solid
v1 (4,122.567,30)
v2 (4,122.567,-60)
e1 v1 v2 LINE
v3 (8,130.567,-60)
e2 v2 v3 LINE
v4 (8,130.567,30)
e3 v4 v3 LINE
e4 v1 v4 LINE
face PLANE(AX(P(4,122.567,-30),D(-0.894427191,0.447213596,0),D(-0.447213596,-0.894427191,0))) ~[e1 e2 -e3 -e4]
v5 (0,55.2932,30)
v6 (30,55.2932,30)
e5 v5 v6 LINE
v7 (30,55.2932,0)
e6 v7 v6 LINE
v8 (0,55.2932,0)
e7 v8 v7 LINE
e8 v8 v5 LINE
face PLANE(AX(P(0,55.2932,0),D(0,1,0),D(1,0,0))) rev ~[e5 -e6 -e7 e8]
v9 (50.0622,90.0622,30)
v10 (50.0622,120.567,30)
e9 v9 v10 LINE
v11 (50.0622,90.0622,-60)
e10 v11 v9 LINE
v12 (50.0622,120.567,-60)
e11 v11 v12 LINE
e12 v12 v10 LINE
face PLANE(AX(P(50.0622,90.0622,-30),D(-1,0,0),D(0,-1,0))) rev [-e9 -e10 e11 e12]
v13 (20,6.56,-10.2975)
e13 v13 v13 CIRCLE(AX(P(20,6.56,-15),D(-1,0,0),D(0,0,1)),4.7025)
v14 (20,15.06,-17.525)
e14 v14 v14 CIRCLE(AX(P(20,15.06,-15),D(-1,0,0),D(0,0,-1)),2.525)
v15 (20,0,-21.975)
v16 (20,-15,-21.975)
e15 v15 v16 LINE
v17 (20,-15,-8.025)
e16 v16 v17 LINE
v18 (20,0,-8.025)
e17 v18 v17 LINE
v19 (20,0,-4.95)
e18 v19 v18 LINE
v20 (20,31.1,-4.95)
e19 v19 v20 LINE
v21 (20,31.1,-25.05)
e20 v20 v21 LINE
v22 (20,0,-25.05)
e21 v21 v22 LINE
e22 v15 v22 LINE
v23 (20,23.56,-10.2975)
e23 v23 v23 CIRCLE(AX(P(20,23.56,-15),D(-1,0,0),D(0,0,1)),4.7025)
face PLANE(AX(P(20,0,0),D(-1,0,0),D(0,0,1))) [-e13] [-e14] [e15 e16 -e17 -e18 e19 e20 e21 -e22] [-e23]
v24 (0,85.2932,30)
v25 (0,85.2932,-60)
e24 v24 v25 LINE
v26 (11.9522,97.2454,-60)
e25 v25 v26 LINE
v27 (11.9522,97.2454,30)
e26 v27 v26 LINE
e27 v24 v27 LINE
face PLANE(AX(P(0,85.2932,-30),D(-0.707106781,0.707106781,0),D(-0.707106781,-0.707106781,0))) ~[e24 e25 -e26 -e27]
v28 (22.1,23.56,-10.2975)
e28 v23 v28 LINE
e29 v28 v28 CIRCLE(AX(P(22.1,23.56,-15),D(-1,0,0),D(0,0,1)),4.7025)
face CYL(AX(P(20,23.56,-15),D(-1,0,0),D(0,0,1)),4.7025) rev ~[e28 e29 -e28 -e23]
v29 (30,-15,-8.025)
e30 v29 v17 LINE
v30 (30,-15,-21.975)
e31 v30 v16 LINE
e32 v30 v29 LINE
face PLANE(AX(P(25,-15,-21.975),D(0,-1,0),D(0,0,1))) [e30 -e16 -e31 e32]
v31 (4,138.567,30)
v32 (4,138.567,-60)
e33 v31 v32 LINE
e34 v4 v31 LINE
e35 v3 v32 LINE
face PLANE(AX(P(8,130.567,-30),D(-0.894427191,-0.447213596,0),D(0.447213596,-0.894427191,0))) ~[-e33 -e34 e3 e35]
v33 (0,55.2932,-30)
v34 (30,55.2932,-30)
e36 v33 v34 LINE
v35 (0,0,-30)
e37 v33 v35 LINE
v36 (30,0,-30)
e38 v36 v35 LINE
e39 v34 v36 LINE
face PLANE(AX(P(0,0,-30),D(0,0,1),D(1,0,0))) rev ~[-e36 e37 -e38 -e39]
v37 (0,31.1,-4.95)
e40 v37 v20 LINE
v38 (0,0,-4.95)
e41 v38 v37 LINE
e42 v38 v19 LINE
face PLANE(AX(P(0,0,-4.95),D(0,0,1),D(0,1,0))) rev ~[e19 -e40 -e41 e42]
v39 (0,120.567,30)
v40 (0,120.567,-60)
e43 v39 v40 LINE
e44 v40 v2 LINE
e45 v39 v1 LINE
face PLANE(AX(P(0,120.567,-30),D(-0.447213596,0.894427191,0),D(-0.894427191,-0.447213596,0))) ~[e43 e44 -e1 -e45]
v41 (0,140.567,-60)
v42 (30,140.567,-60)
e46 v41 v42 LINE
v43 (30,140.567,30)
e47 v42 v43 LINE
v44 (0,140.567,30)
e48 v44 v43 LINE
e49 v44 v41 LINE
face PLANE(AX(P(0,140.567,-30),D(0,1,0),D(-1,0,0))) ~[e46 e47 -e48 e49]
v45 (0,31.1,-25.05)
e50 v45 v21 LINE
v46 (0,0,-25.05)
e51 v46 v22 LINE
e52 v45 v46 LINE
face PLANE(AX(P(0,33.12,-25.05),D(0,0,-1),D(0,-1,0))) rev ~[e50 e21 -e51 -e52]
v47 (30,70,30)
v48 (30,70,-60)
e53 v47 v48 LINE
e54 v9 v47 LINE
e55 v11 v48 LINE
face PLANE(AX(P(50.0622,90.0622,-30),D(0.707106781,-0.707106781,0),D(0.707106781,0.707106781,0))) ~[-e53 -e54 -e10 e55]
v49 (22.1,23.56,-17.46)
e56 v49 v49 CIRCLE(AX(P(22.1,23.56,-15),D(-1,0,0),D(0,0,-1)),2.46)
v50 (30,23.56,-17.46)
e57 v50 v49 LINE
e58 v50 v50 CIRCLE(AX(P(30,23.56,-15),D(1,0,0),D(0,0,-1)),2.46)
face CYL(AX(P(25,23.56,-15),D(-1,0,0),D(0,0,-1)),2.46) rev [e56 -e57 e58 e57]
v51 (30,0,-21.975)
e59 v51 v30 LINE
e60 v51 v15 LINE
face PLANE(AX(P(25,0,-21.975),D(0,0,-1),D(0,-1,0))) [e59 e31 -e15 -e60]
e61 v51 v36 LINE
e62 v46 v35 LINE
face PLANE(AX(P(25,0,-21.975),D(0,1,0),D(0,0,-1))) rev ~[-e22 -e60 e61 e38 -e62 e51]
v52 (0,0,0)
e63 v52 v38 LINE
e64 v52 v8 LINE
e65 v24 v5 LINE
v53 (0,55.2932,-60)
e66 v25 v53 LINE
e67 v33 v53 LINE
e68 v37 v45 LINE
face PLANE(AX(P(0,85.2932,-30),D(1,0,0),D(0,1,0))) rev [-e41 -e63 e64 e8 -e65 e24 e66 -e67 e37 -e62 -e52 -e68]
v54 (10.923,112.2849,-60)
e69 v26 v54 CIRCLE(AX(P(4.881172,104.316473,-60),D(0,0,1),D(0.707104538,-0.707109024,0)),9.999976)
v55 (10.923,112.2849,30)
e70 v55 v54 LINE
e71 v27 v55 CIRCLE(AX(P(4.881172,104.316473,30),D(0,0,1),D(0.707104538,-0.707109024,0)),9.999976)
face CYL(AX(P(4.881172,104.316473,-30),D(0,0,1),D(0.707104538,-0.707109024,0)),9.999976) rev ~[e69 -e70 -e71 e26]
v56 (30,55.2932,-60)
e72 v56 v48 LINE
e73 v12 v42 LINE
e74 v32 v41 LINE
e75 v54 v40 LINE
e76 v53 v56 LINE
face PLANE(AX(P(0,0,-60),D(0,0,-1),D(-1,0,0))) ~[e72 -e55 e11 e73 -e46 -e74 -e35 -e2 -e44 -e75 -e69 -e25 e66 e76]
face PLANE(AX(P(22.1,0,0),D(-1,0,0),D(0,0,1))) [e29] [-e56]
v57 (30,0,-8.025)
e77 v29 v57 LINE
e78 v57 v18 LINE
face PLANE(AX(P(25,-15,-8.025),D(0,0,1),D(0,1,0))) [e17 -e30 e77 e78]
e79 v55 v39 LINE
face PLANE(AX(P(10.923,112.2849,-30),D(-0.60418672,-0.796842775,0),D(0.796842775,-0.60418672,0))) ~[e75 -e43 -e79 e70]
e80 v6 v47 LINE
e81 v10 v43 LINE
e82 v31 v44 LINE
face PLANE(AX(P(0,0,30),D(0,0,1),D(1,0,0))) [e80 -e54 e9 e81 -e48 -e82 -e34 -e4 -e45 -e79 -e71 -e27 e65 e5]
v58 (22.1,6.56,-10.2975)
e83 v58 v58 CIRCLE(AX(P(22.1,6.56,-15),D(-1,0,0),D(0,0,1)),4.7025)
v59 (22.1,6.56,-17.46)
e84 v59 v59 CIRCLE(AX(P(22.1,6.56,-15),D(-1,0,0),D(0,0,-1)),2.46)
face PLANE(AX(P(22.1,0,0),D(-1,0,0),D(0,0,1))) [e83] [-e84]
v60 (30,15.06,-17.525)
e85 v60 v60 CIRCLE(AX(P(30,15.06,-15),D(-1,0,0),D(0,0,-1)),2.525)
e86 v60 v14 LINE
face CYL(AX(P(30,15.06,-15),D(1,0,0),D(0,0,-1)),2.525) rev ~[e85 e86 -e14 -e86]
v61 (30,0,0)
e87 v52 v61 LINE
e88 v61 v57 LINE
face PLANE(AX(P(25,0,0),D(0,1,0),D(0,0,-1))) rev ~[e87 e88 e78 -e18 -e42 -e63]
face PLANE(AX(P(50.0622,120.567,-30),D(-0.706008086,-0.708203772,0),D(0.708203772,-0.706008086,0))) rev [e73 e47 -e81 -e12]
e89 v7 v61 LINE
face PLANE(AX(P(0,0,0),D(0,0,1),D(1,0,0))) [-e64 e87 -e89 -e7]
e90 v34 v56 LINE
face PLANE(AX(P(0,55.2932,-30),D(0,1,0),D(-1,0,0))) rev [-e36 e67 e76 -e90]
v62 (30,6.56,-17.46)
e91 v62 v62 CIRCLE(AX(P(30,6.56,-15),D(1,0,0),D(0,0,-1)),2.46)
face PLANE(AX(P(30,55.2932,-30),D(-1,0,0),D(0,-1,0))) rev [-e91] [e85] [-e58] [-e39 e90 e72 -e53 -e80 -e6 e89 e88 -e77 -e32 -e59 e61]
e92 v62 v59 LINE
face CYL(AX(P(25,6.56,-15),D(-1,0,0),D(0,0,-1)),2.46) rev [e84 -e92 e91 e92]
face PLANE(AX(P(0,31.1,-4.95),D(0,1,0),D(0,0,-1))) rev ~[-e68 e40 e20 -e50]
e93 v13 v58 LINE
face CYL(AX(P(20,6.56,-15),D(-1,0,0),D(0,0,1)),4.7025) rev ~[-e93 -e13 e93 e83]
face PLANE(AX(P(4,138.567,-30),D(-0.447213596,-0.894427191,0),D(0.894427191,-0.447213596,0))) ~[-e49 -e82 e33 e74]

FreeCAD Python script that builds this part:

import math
import FreeCAD as App
import Part
import Sketcher

V = App.Vector
Q = App.Units.Quantity

doc = App.newDocument("Part")
body = doc.addObject("PartDesign::Body", "Body")

# Sketch on XY plane
sketch1 = body.newObject("Sketcher::SketchObject", "Sketch")
sketch1.AttachmentSupport = (doc.getObject("XY_Plane"), [""])
sketch1.MapMode = "FlatFace"
sketch1.addGeometry(Part.LineSegment(V(0, 40, 0), V(0, 0, 0)), False)
sketch1.addGeometry(Part.LineSegment(V(0, 0, 0), V(25, 0, 0)), False)
sketch1.addGeometry(Part.LineSegment(V(25, 0, 0), V(25, 40, 0)), False)
sketch1.addGeometry(Part.LineSegment(V(25, 40, 0), V(0, 40, 0)), False)
sketch1.addConstraint(Sketcher.Constraint("Coincident", 0, 2, 1, 1))
sketch1.addConstraint(Sketcher.Constraint("Coincident", 1, 2, 2, 1))
sketch1.addConstraint(Sketcher.Constraint("Coincident", 2, 2, 3, 1))
sketch1.addConstraint(Sketcher.Constraint("Coincident", 3, 2, 0, 1))
sketch1.addConstraint(Sketcher.Constraint("Vertical", 0))
sketch1.addConstraint(Sketcher.Constraint("Horizontal", 1))
sketch1.addConstraint(Sketcher.Constraint("Vertical", 2))
sketch1.addConstraint(Sketcher.Constraint("Horizontal", 3))
sketch1.addConstraint(Sketcher.Constraint("Coincident", 0, 2, -1, 1))
sketch1.addConstraint(Sketcher.Constraint("DistanceX", 1, 1, 1, 2, 25.0))
sketch1.addConstraint(Sketcher.Constraint("DistanceY", 0, 2, 0, 1, 40.0))
pad1 = body.newObject("PartDesign::Pad", "Pad")
pad1.Profile = sketch1
pad1.Length = 30
pad1.Reversed = True

# Sketch on YZ plane
sketch2 = body.newObject("Sketcher::SketchObject", "Sketch001")
sketch2.AttachmentSupport = (doc.getObject("YZ_Plane"), [""])
sketch2.MapMode = "FlatFace"
sketch2.AttachmentOffset = App.Placement(V(0, 0, 25), App.Rotation())
sketch2.addGeometry(Part.Circle(V(6.56, -15, 0), V(0, 0, 1), 2.46), False)
sketch2.addConstraint(Sketcher.Constraint("Diameter", 0, 4.92))
sketch2.addConstraint(Sketcher.Constraint("DistanceY", 0, 3, -1, 1, 15.0))
sketch2.addConstraint(Sketcher.Constraint("DistanceX", -1, 1, 0, 3, 6.56))
pocket1 = body.newObject("PartDesign::Pocket", "Pocket")
pocket1.Profile = sketch2
pocket1.Length = 30

# Sketch on YZ plane
sketch3 = body.newObject("Sketcher::SketchObject", "Sketch002")
sketch3.AttachmentSupport = (doc.getObject("YZ_Plane"), [""])
sketch3.MapMode = "FlatFace"
sketch3.addGeometry(Part.LineSegment(V(0, -25.05, 0), V(0, -4.95, 0)), False)
sketch3.addGeometry(Part.LineSegment(V(0, -4.95, 0), V(33.12, -4.95, 0)), False)
sketch3.addGeometry(Part.LineSegment(V(33.12, -4.95, 0), V(33.12, -25.05, 0)), False)
sketch3.addGeometry(Part.LineSegment(V(33.12, -25.05, 0), V(0, -25.05, 0)), False)
sketch3.addConstraint(Sketcher.Constraint("Coincident", 0, 2, 1, 1))
sketch3.addConstraint(Sketcher.Constraint("Coincident", 1, 2, 2, 1))
sketch3.addConstraint(Sketcher.Constraint("Coincident", 2, 2, 3, 1))
sketch3.addConstraint(Sketcher.Constraint("Coincident", 3, 2, 0, 1))
sketch3.addConstraint(Sketcher.Constraint("Vertical", 0))
sketch3.addConstraint(Sketcher.Constraint("Horizontal", 1))
sketch3.addConstraint(Sketcher.Constraint("Vertical", 2))
sketch3.addConstraint(Sketcher.Constraint("Horizontal", 3))
sketch3.addConstraint(Sketcher.Constraint("PointOnObject", 0, 2, -2))
sketch3.addConstraint(Sketcher.Constraint("DistanceY", 0, 1, 0, 2, 20.1))
sketch3.addConstraint(Sketcher.Constraint("DistanceX", 1, 1, 1, 2, 33.12))
sketch3.addConstraint(Sketcher.Constraint("DistanceY", 0, 2, -1, 1, 4.95))
pocket2 = body.newObject("PartDesign::Pocket", "Pocket001")
pocket2.Profile = sketch3
pocket2.Length = 20
pocket2.Reversed = True

# Sketch on XZ plane
sketch4 = body.newObject("Sketcher::SketchObject", "Sketch003")
sketch4.AttachmentSupport = (doc.getObject("XZ_Plane"), [""])
sketch4.MapMode = "FlatFace"
sketch4.addGeometry(Part.LineSegment(V(25, -8.025, 0), V(20, -8.025, 0)), False)
sketch4.addGeometry(Part.LineSegment(V(20, -8.025, 0), V(20, -21.975, 0)), False)
sketch4.addGeometry(Part.LineSegment(V(20, -21.975, 0), V(25, -21.975, 0)), False)
sketch4.addGeometry(Part.LineSegment(V(25, -21.975, 0), V(25, -8.025, 0)), False)
sketch4.addConstraint(Sketcher.Constraint("Coincident", 0, 2, 1, 1))
sketch4.addConstraint(Sketcher.Constraint("Coincident", 1, 2, 2, 1))
sketch4.addConstraint(Sketcher.Constraint("Coincident", 2, 2, 3, 1))
sketch4.addConstraint(Sketcher.Constraint("Coincident", 3, 2, 0, 1))
sketch4.addConstraint(Sketcher.Constraint("Horizontal", 0))
sketch4.addConstraint(Sketcher.Constraint("Vertical", 1))
sketch4.addConstraint(Sketcher.Constraint("Horizontal", 2))
sketch4.addConstraint(Sketcher.Constraint("Vertical", 3))
sketch4.addConstraint(Sketcher.Constraint("DistanceY", 1, 2, 1, 1, 13.95))
sketch4.addConstraint(Sketcher.Constraint("DistanceX", 0, 2, 0, 1, 5.0))
sketch4.addConstraint(Sketcher.Constraint("DistanceX", -1, 1, 0, 2, 20.0))
sketch4.addConstraint(Sketcher.Constraint("DistanceY", 0, 2, -1, 1, 8.025))
pad2 = body.newObject("PartDesign::Pad", "Pad001")
pad2.Profile = sketch4
pad2.Length = 15

# Sketch on YZ plane
sketch5 = body.newObject("Sketcher::SketchObject", "Sketch004")
sketch5.AttachmentSupport = (doc.getObject("YZ_Plane"), [""])
sketch5.MapMode = "FlatFace"
sketch5.AttachmentOffset = App.Placement(V(0, 0, 20), App.Rotation())
sketch5.addGeometry(Part.Circle(V(6.56, -15, 0), V(0, 0, 1), 4.7025), False)
sketch5.addGeometry(Part.Circle(V(6.56, -15, 0), V(0, 0, 1), 2.46), False)
sketch5.addConstraint(Sketcher.Constraint("Coincident", 1, 3, 0, 3))
sketch5.addConstraint(Sketcher.Constraint("Diameter", 0, 9.405))
sketch5.addConstraint(Sketcher.Constraint("Diameter", 1, 4.92))
sketch5.addConstraint(Sketcher.Constraint("DistanceY", 0, 3, -1, 1, 15.0))
sketch5.addConstraint(Sketcher.Constraint("DistanceX", -1, 1, 0, 3, 6.56))
pocket3 = body.newObject("PartDesign::Pocket", "Pocket002")
pocket3.Profile = sketch5
pocket3.Length = 2.1
pocket3.Reversed = True

# Sketch on YZ plane
sketch6 = body.newObject("Sketcher::SketchObject", "Sketch005")
sketch6.AttachmentSupport = (doc.getObject("YZ_Plane"), [""])
sketch6.MapMode = "FlatFace"
sketch6.AttachmentOffset = App.Placement(V(0, 0, 25), App.Rotation())
sketch6.addGeometry(Part.Circle(V(23.56, -15, 0), V(0, 0, 1), 2.46), False)
sketch6.addConstraint(Sketcher.Constraint("Diameter", 0, 4.92))
sketch6.addConstraint(Sketcher.Constraint("DistanceY", 0, 3, -1, 1, 15.0))
sketch6.addConstraint(Sketcher.Constraint("DistanceX", -1, 1, 0, 3, 23.56))
pocket4 = body.newObject("PartDesign::Pocket", "Pocket003")
pocket4.Profile = sketch6
pocket4.Length = 10

# Sketch on YZ plane
sketch7 = body.newObject("Sketcher::SketchObject", "Sketch006")
sketch7.AttachmentSupport = (doc.getObject("YZ_Plane"), [""])
sketch7.MapMode = "FlatFace"
sketch7.AttachmentOffset = App.Placement(V(0, 0, 20), App.Rotation())
sketch7.addGeometry(Part.Circle(V(23.56, -15, 0), V(0, 0, 1), 4.7025), False)
sketch7.addGeometry(Part.Circle(V(23.56, -15, 0), V(0, 0, 1), 2.46), False)
sketch7.addConstraint(Sketcher.Constraint("Coincident", 1, 3, 0, 3))
sketch7.addConstraint(Sketcher.Constraint("Diameter", 0, 9.405))
sketch7.addConstraint(Sketcher.Constraint("Diameter", 1, 4.92))
sketch7.addConstraint(Sketcher.Constraint("DistanceY", 0, 3, -1, 1, 15.0))
sketch7.addConstraint(Sketcher.Constraint("DistanceX", -1, 1, 0, 3, 23.56))
pocket5 = body.newObject("PartDesign::Pocket", "Pocket004")
pocket5.Profile = sketch7
pocket5.Length = 2.1
pocket5.Reversed = True

# Sketch on YZ plane
sketch8 = body.newObject("Sketcher::SketchObject", "Sketch007")
sketch8.AttachmentSupport = (doc.getObject("YZ_Plane"), [""])
sketch8.MapMode = "FlatFace"
sketch8.AttachmentOffset = App.Placement(V(0, 0, 25), App.Rotation())
sketch8.addGeometry(Part.LineSegment(V(0, -30, 0), V(40, -30, 0)), False)
sketch8.addGeometry(Part.LineSegment(V(40, -30, 0), V(40, 0, 0)), False)
sketch8.addGeometry(Part.LineSegment(V(40, 0, 0), V(0, 0, 0)), False)
sketch8.addGeometry(Part.LineSegment(V(0, 0, 0), V(0, -8.025, 0)), False)
sketch8.addGeometry(Part.LineSegment(V(0, -8.025, 0), V(-15, -8.025, 0)), False)
sketch8.addGeometry(Part.LineSegment(V(-15, -8.025, 0), V(-15, -21.975, 0)), False)
sketch8.addGeometry(Part.LineSegment(V(-15, -21.975, 0), V(0, -21.975, 0)), False)
sketch8.addGeometry(Part.LineSegment(V(0, -21.975, 0), V(0, -30, 0)), False)
sketch8.addGeometry(Part.Circle(V(6.56, -15, 0), V(0, 0, 1), 2.46), False)
sketch8.addGeometry(Part.Circle(V(23.56, -15, 0), V(0, 0, 1), 2.46), False)
sketch8.addConstraint(Sketcher.Constraint("Coincident", 0, 2, 1, 1))
sketch8.addConstraint(Sketcher.Constraint("Coincident", 1, 2, 2, 1))
sketch8.addConstraint(Sketcher.Constraint("Coincident", 2, 2, 3, 1))
sketch8.addConstraint(Sketcher.Constraint("Coincident", 3, 2, 4, 1))
sketch8.addConstraint(Sketcher.Constraint("Coincident", 4, 2, 5, 1))
sketch8.addConstraint(Sketcher.Constraint("Coincident", 5, 2, 6, 1))
sketch8.addConstraint(Sketcher.Constraint("Coincident", 6, 2, 7, 1))
sketch8.addConstraint(Sketcher.Constraint("Coincident", 7, 2, 0, 1))
sketch8.addConstraint(Sketcher.Constraint("Horizontal", 0))
sketch8.addConstraint(Sketcher.Constraint("Vertical", 1))
sketch8.addConstraint(Sketcher.Constraint("Horizontal", 2))
sketch8.addConstraint(Sketcher.Constraint("Vertical", 3))
sketch8.addConstraint(Sketcher.Constraint("Horizontal", 4))
sketch8.addConstraint(Sketcher.Constraint("Vertical", 5))
sketch8.addConstraint(Sketcher.Constraint("Horizontal", 6))
sketch8.addConstraint(Sketcher.Constraint("Vertical", 7))
sketch8.addConstraint(Sketcher.Constraint("Coincident", 2, 2, -1, 1))
sketch8.addConstraint(Sketcher.Constraint("Equal", 8, 9))
sketch8.addConstraint(Sketcher.Constraint("PointOnObject", 6, 2, -2))
sketch8.addConstraint(Sketcher.Constraint("Horizontal", 8, 3, 9, 3))
sketch8.addConstraint(Sketcher.Constraint("Equal", 3, 7))
sketch8.addConstraint(Sketcher.Constraint("Diameter", 8, 4.92))
sketch8.addConstraint(Sketcher.Constraint("DistanceX", 0, 1, 0, 2, 40.0))
sketch8.addConstraint(Sketcher.Constraint("DistanceX", 4, 2, 4, 1, 15.0))
sketch8.addConstraint(Sketcher.Constraint("DistanceY", 1, 1, 1, 2, 30.0))
sketch8.addConstraint(Sketcher.Constraint("DistanceY", 8, 3, -1, 1, 15.0))
sketch8.addConstraint(Sketcher.Constraint("DistanceX", 8, 3, 9, 3, 17.0))
sketch8.addConstraint(Sketcher.Constraint("DistanceY", 5, 2, 5, 1, 13.95))
sketch8.addConstraint(Sketcher.Constraint("DistanceX", -1, 1, 8, 3, 6.56))
pad3 = body.newObject("PartDesign::Pad", "Pad002")
pad3.Profile = sketch8
pad3.Length = 5

# Sketch on XZ plane
sketch9 = body.newObject("Sketcher::SketchObject", "Sketch008")
sketch9.AttachmentSupport = (doc.getObject("XZ_Plane"), [""])
sketch9.MapMode = "FlatFace"
sketch9.AttachmentOffset = App.Placement(V(0, 0, -40), App.Rotation())
sketch9.addGeometry(Part.LineSegment(V(30, -30, 0), V(0, -30, 0)), False)
sketch9.addGeometry(Part.LineSegment(V(0, -30, 0), V(0, 0, 0)), False)
sketch9.addGeometry(Part.LineSegment(V(0, 0, 0), V(30, 0, 0)), False)
sketch9.addGeometry(Part.LineSegment(V(30, 0, 0), V(30, -30, 0)), False)
sketch9.addConstraint(Sketcher.Constraint("Coincident", 0, 2, 1, 1))
sketch9.addConstraint(Sketcher.Constraint("Coincident", 1, 2, 2, 1))
sketch9.addConstraint(Sketcher.Constraint("Coincident", 2, 2, 3, 1))
sketch9.addConstraint(Sketcher.Constraint("Coincident", 3, 2, 0, 1))
sketch9.addConstraint(Sketcher.Constraint("Horizontal", 0))
sketch9.addConstraint(Sketcher.Constraint("Vertical", 1))
sketch9.addConstraint(Sketcher.Constraint("Horizontal", 2))
sketch9.addConstraint(Sketcher.Constraint("Vertical", 3))
sketch9.addConstraint(Sketcher.Constraint("Coincident", 1, 2, -1, 1))
sketch9.addConstraint(Sketcher.Constraint("Equal", 2, 1))
sketch9.addConstraint(Sketcher.Constraint("DistanceX", 0, 2, 0, 1, 30.0))
pad4 = body.newObject("PartDesign::Pad", "Pad003")
pad4.Profile = sketch9
pad4.Length = 30
pad4.Reversed = True

# Sketch on YZ plane
sketch10 = body.newObject("Sketcher::SketchObject", "Sketch009")
sketch10.AttachmentSupport = (doc.getObject("YZ_Plane"), [""])
sketch10.MapMode = "FlatFace"
sketch10.AttachmentOffset = App.Placement(V(0, 0, 30), App.Rotation())
sketch10.addGeometry(Part.Circle(V(15.06, -15, 0), V(0, 0, 1), 2.525), False)
sketch10.addConstraint(Sketcher.Constraint("Diameter", 0, 5.05))
sketch10.addConstraint(Sketcher.Constraint("DistanceY", 0, 3, -1, 1, 15.0))
sketch10.addConstraint(Sketcher.Constraint("DistanceX", -1, 1, 0, 3, 15.06))
pocket6 = body.newObject("PartDesign::Pocket", "Pocket005")
pocket6.Profile = sketch10
pocket6.Length = 30

# Sketch on YZ plane
sketch11 = body.newObject("Sketcher::SketchObject", "Sketch010")
sketch11.AttachmentSupport = (doc.getObject("YZ_Plane"), [""])
sketch11.MapMode = "FlatFace"
sketch11.addGeometry(Part.LineSegment(V(33.12, -4.95, 0), V(33.12, -25.05, 0)), False)
sketch11.addGeometry(Part.LineSegment(V(33.12, -25.05, 0), V(31.1, -25.05, 0)), False)
sketch11.addGeometry(Part.LineSegment(V(31.1, -25.05, 0), V(31.1, -4.95, 0)), False)
sketch11.addGeometry(Part.LineSegment(V(31.1, -4.95, 0), V(33.12, -4.95, 0)), False)
sketch11.addConstraint(Sketcher.Constraint("Coincident", 0, 2, 1, 1))
sketch11.addConstraint(Sketcher.Constraint("Coincident", 1, 2, 2, 1))
sketch11.addConstraint(Sketcher.Constraint("Coincident", 2, 2, 3, 1))
sketch11.addConstraint(Sketcher.Constraint("Coincident", 3, 2, 0, 1))
sketch11.addConstraint(Sketcher.Constraint("Vertical", 0))
sketch11.addConstraint(Sketcher.Constraint("Horizontal", 1))
sketch11.addConstraint(Sketcher.Constraint("Vertical", 2))
sketch11.addConstraint(Sketcher.Constraint("Horizontal", 3))
sketch11.addConstraint(Sketcher.Constraint("DistanceX", 1, 2, 1, 1, 2.02))
sketch11.addConstraint(Sketcher.Constraint("DistanceY", 0, 2, 0, 1, 20.1))
sketch11.addConstraint(Sketcher.Constraint("DistanceX", -1, 1, 1, 2, 31.1))
sketch11.addConstraint(Sketcher.Constraint("DistanceY", 0, 2, -1, 1, 25.05))
pad5 = body.newObject("PartDesign::Pad", "Pad004")
pad5.Profile = sketch11
pad5.Length = 20

# Sketch on XY plane
sketch12 = body.newObject("Sketcher::SketchObject", "Sketch011")
sketch12.AttachmentSupport = (doc.getObject("XY_Plane"), [""])
sketch12.MapMode = "FlatFace"
sketch12.addGeometry(Part.LineSegment(V(0, 85.2932, 0), V(0, 70, 0)), False)
sketch12.addGeometry(Part.LineSegment(V(0, 70, 0), V(30, 70, 0)), False)
sketch12.addGeometry(Part.LineSegment(V(30, 70, 0), V(50.0622, 90.0622, 0)), False)
sketch12.addGeometry(Part.LineSegment(V(50.0622, 90.0622, 0), V(50.0622, 120.567, 0)), False)
sketch12.addGeometry(Part.LineSegment(V(50.0622, 120.567, 0), V(30, 140.567, 0)), False)
sketch12.addGeometry(Part.LineSegment(V(30, 140.567, 0), V(0, 140.567, 0)), False)
sketch12.addGeometry(Part.LineSegment(V(0, 140.567, 0), V(4, 138.567, 0)), False)
sketch12.addGeometry(Part.LineSegment(V(4, 138.567, 0), V(8, 130.567, 0)), False)
sketch12.addGeometry(Part.LineSegment(V(8, 130.567, 0), V(4, 122.567, 0)), False)
sketch12.addGeometry(Part.LineSegment(V(4, 122.567, 0), V(0, 120.567, 0)), False)
sketch12.addGeometry(Part.LineSegment(V(0, 120.567, 0), V(10.923, 112.2849, 0)), False)
sketch12.addGeometry(Part.ArcOfCircle(Part.Circle(V(4.8811, 104.3165, 0), V(0, 0, 1), 10.000046), math.radians(-45), math.radians(52.829413)), False)
sketch12.addGeometry(Part.LineSegment(V(11.9522, 97.2454, 0), V(0, 85.2932, 0)), False)
sketch12.addConstraint(Sketcher.Constraint("Coincident", 0, 2, 1, 1))
sketch12.addConstraint(Sketcher.Constraint("Coincident", 1, 2, 2, 1))
sketch12.addConstraint(Sketcher.Constraint("Coincident", 2, 2, 3, 1))
sketch12.addConstraint(Sketcher.Constraint("Coincident", 3, 2, 4, 1))
sketch12.addConstraint(Sketcher.Constraint("Coincident", 4, 2, 5, 1))
sketch12.addConstraint(Sketcher.Constraint("Coincident", 5, 2, 6, 1))
sketch12.addConstraint(Sketcher.Constraint("Coincident", 6, 2, 7, 1))
sketch12.addConstraint(Sketcher.Constraint("Coincident", 7, 2, 8, 1))
sketch12.addConstraint(Sketcher.Constraint("Coincident", 8, 2, 9, 1))
sketch12.addConstraint(Sketcher.Constraint("Coincident", 9, 2, 10, 1))
sketch12.addConstraint(Sketcher.Constraint("Tangent", 10, 2, 11, 2))
sketch12.addConstraint(Sketcher.Constraint("Tangent", 11, 1, 12, 1))
sketch12.addConstraint(Sketcher.Constraint("Coincident", 12, 2, 0, 1))
sketch12.addConstraint(Sketcher.Constraint("Vertical", 0))
sketch12.addConstraint(Sketcher.Constraint("Horizontal", 1))
sketch12.addConstraint(Sketcher.Constraint("Vertical", 3))
sketch12.addConstraint(Sketcher.Constraint("Horizontal", 5))
sketch12.addConstraint(Sketcher.Constraint("PointOnObject", 0, 2, -2))
sketch12.addConstraint(Sketcher.Constraint("PointOnObject", 5, 2, -2))
sketch12.addConstraint(Sketcher.Constraint("PointOnObject", 9, 2, -2))
sketch12.addConstraint(Sketcher.Constraint("Perpendicular", 6, 8))
sketch12.addConstraint(Sketcher.Constraint("Perpendicular", 7, 9))
sketch12.addConstraint(Sketcher.Constraint("Parallel", 2, 12))
sketch12.addConstraint(Sketcher.Constraint("Horizontal", 3, 2, 9, 2))
sketch12.addConstraint(Sketcher.Constraint("Vertical", 1, 2, 4, 2))
sketch12.addConstraint(Sketcher.Constraint("Vertical", 6, 2, 8, 2))
sketch12.addConstraint(Sketcher.Constraint("Equal", 7, 8))
sketch12.addConstraint(Sketcher.Constraint("Radius", 11, 10.0))
sketch12.addConstraint(Sketcher.Constraint("Angle", 2, Q("45 deg")))
sketch12.addConstraint(Sketcher.Constraint("DistanceY", 7, 2, 5, 2, 10.0))
sketch12.addConstraint(Sketcher.Constraint("DistanceX", 1, 1, 1, 2, 30.0))
sketch12.addConstraint(Sketcher.Constraint("DistanceY", -1, 1, 0, 2, 70.0))
sketch12.addConstraint(Sketcher.Constraint("DistanceX", -1, 1, 6, 2, 4.0))
sketch12.addConstraint(Sketcher.Constraint("DistanceX", -1, 1, 7, 2, 8.0))
sketch12.addConstraint(Sketcher.Constraint("Angle", 4, Q("135.089 deg")))
sketch12.addConstraint(Sketcher.Constraint("Angle", 10, Q("-37.1703 deg")))
sketch12.addConstraint(Sketcher.Constraint("Distance", 12, 16.903))
sketch12.addConstraint(Sketcher.Constraint("DistanceY", 0, 2, 0, 1, 15.2932))
pad6 = body.newObject("PartDesign::Pad", "Pad005")
pad6.Profile = sketch12
pad6.Length = 30
pad6.Reversed = True

# Sketch on XY plane
sketch13 = body.newObject("Sketcher::SketchObject", "Sketch012")
sketch13.AttachmentSupport = (doc.getObject("XY_Plane"), [""])
sketch13.MapMode = "FlatFace"
sketch13.addGeometry(Part.LineSegment(V(30, 70, 0), V(50.0622, 90.0622, 0)), False)
sketch13.addGeometry(Part.LineSegment(V(50.0622, 90.0622, 0), V(50.0622, 120.567, 0)), False)
sketch13.addGeometry(Part.LineSegment(V(50.0622, 120.567, 0), V(30, 140.567, 0)), False)
sketch13.addGeometry(Part.LineSegment(V(30, 140.567, 0), V(0, 140.567, 0)), False)
sketch13.addGeometry(Part.LineSegment(V(0, 140.567, 0), V(4, 138.567, 0)), False)
sketch13.addGeometry(Part.LineSegment(V(4, 138.567, 0), V(8, 130.567, 0)), False)
sketch13.addGeometry(Part.LineSegment(V(8, 130.567, 0), V(4, 122.567, 0)), False)
sketch13.addGeometry(Part.LineSegment(V(4, 122.567, 0), V(0, 120.567, 0)), False)
sketch13.addGeometry(Part.LineSegment(V(0, 120.567, 0), V(10.923, 112.2849, 0)), False)
sketch13.addGeometry(Part.ArcOfCircle(Part.Circle(V(4.8811, 104.3165, 0), V(0, 0, 1), 10.000046), math.radians(-45), math.radians(52.829413)), False)
sketch13.addGeometry(Part.LineSegment(V(11.9522, 97.2454, 0), V(0, 85.2932, 0)), False)
sketch13.addGeometry(Part.LineSegment(V(0, 85.2932, 0), V(0, 55.2932, 0)), False)
sketch13.addGeometry(Part.LineSegment(V(0, 55.2932, 0), V(30, 55.2932, 0)), False)
sketch13.addGeometry(Part.LineSegment(V(30, 55.2932, 0), V(30, 70, 0)), False)
sketch13.addConstraint(Sketcher.Constraint("Coincident", 0, 2, 1, 1))
sketch13.addConstraint(Sketcher.Constraint("Coincident", 1, 2, 2, 1))
sketch13.addConstraint(Sketcher.Constraint("Coincident", 2, 2, 3, 1))
sketch13.addConstraint(Sketcher.Constraint("Coincident", 3, 2, 4, 1))
sketch13.addConstraint(Sketcher.Constraint("Coincident", 4, 2, 5, 1))
sketch13.addConstraint(Sketcher.Constraint("Coincident", 5, 2, 6, 1))
sketch13.addConstraint(Sketcher.Constraint("Coincident", 6, 2, 7, 1))
sketch13.addConstraint(Sketcher.Constraint("Coincident", 7, 2, 8, 1))
sketch13.addConstraint(Sketcher.Constraint("Tangent", 8, 2, 9, 2))
sketch13.addConstraint(Sketcher.Constraint("Tangent", 9, 1, 10, 1))
sketch13.addConstraint(Sketcher.Constraint("Coincident", 10, 2, 11, 1))
sketch13.addConstraint(Sketcher.Constraint("Coincident", 11, 2, 12, 1))
sketch13.addConstraint(Sketcher.Constraint("Coincident", 12, 2, 13, 1))
sketch13.addConstraint(Sketcher.Constraint("Coincident", 13, 2, 0, 1))
sketch13.addConstraint(Sketcher.Constraint("Vertical", 1))
sketch13.addConstraint(Sketcher.Constraint("Horizontal", 3))
sketch13.addConstraint(Sketcher.Constraint("Vertical", 11))
sketch13.addConstraint(Sketcher.Constraint("Horizontal", 12))
sketch13.addConstraint(Sketcher.Constraint("Vertical", 13))
sketch13.addConstraint(Sketcher.Constraint("PointOnObject", 3, 2, -2))
sketch13.addConstraint(Sketcher.Constraint("PointOnObject", 7, 2, -2))
sketch13.addConstraint(Sketcher.Constraint("PointOnObject", 10, 2, -2))
sketch13.addConstraint(Sketcher.Constraint("Perpendicular", 4, 6))
sketch13.addConstraint(Sketcher.Constraint("Perpendicular", 5, 7))
sketch13.addConstraint(Sketcher.Constraint("Parallel", 0, 10))
sketch13.addConstraint(Sketcher.Constraint("Horizontal", 1, 2, 7, 2))
sketch13.addConstraint(Sketcher.Constraint("Vertical", 4, 2, 6, 2))
sketch13.addConstraint(Sketcher.Constraint("Vertical", 2, 2, 12, 2))
sketch13.addConstraint(Sketcher.Constraint("Equal", 12, 11))
sketch13.addConstraint(Sketcher.Constraint("Equal", 5, 6))
sketch13.addConstraint(Sketcher.Constraint("DistanceX", 3, 2, 3, 1, 30.0))
sketch13.addConstraint(Sketcher.Constraint("Radius", 9, 10.0))
sketch13.addConstraint(Sketcher.Constraint("Angle", 0, Q("45 deg")))
sketch13.addConstraint(Sketcher.Constraint("DistanceX", -1, 1, 4, 2, 4.0))
sketch13.addConstraint(Sketcher.Constraint("DistanceX", -1, 1, 5, 2, 8.0))
sketch13.addConstraint(Sketcher.Constraint("DistanceY", -1, 1, 13, 2, 70.0))
sketch13.addConstraint(Sketcher.Constraint("DistanceY", 1, 2, 2, 2, 20.0))
sketch13.addConstraint(Sketcher.Constraint("Angle", 2, Q("135.089 deg")))
sketch13.addConstraint(Sketcher.Constraint("Angle", 8, Q("-37.1703 deg")))
sketch13.addConstraint(Sketcher.Constraint("Distance", 10, 16.903))
sketch13.addConstraint(Sketcher.Constraint("DistanceY", 1, 1, 1, 2, 30.5048))
pad7 = body.newObject("PartDesign::Pad", "Pad006")
pad7.Profile = sketch13
pad7.Length = 30
doc.recompute()

datumplane = body.newObject("PartDesign::Plane", "DatumPlane")
datumplane.AttachmentSupport = (doc.getObject("XY_Plane"), [""])
datumplane.MapMode = "FlatFace"
datumplane.AttachmentOffset = App.Placement(V(0, 0, -15), App.Rotation())
mirrored = body.newObject("PartDesign::Mirrored", "Mirrored")
mirrored.Originals = [pad7]
mirrored.MirrorPlane = (datumplane, [""])
body.Tip = mirrored

doc.recompute()
